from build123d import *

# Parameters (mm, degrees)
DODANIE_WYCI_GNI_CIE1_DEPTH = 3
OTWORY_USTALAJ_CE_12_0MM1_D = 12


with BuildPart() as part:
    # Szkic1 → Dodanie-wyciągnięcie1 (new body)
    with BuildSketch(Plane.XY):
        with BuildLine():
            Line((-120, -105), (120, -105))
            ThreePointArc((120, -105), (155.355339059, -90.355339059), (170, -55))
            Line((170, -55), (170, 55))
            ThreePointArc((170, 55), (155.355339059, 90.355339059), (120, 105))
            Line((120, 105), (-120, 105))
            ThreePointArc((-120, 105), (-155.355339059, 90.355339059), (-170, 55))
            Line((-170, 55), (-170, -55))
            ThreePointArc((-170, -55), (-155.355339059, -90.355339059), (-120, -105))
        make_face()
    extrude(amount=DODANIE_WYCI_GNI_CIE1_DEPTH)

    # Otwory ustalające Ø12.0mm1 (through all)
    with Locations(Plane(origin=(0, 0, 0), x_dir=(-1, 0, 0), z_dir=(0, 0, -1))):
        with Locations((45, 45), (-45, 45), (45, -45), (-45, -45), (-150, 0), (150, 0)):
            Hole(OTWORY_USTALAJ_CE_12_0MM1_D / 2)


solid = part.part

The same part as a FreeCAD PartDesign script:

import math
import FreeCAD as App
import Part
import Sketcher
Q = App.Units.Quantity

doc = App.newDocument("Part")
body = doc.addObject("PartDesign::Body", "Body")

# Sketch on XY plane
sketch1 = body.newObject("Sketcher::SketchObject", "Sketch")
sketch1.AttachmentSupport = (doc.getObject("XY_Plane"), [""])
sketch1.MapMode = "FlatFace"
sketch1.addGeometry([
    Part.LineSegment(App.Vector(-120, -105, 0), App.Vector(120, -105, 0)),  # 0
    Part.ArcOfCircle(Part.Circle(App.Vector(120, -55, 0), App.Vector(0, 0, 1), 50), math.radians(-90), math.radians(0)),  # 1
    Part.LineSegment(App.Vector(170, -55, 0), App.Vector(170, 55, 0)),  # 2
    Part.ArcOfCircle(Part.Circle(App.Vector(120, 55, 0), App.Vector(0, 0, 1), 50), math.radians(0), math.radians(90)),  # 3
    Part.LineSegment(App.Vector(120, 105, 0), App.Vector(-120, 105, 0)),  # 4
    Part.ArcOfCircle(Part.Circle(App.Vector(-120, 55, 0), App.Vector(0, 0, 1), 50), math.radians(90), math.radians(180)),  # 5
    Part.LineSegment(App.Vector(-170, 55, 0), App.Vector(-170, -55, 0)),  # 6
    Part.ArcOfCircle(Part.Circle(App.Vector(-120, -55, 0), App.Vector(0, 0, 1), 50), math.radians(-180), math.radians(-90)),  # 7
], False)
sketch1.addConstraint([
    Sketcher.Constraint("Tangent", 0, 2, 1, 1),
    Sketcher.Constraint("Tangent", 1, 2, 2, 1),
    Sketcher.Constraint("Tangent", 2, 2, 3, 1),
    Sketcher.Constraint("Tangent", 3, 2, 4, 1),
    Sketcher.Constraint("Tangent", 4, 2, 5, 1),
    Sketcher.Constraint("Tangent", 5, 2, 6, 1),
    Sketcher.Constraint("Tangent", 6, 2, 7, 1),
    Sketcher.Constraint("Tangent", 7, 2, 0, 1),
    Sketcher.Constraint("Horizontal", 0),
    Sketcher.Constraint("Vertical", 2),
    Sketcher.Constraint("Horizontal", 4),
    Sketcher.Constraint("Vertical", 6),
    Sketcher.Constraint("Equal", 1, 3),
    Sketcher.Constraint("Equal", 3, 5),
    Sketcher.Constraint("Equal", 5, 7),
    Sketcher.Constraint("Symmetric", 1, 3, 5, 3, -1, 1),
    Sketcher.Constraint("Radius", 1, Q("50 mm")),
    Sketcher.Constraint("DistanceX", 0, 1, 0, 2, Q("240 mm")),
    Sketcher.Constraint("DistanceY", 2, 1, 2, 2, Q("110 mm")),
])
pad1 = body.newObject("PartDesign::Pad", "Pad")
pad1.Profile = sketch1
pad1.Length = 3

# Sketch on XY plane
sketch2 = body.newObject("Sketcher::SketchObject", "Sketch001")
sketch2.AttachmentSupport = (doc.getObject("XY_Plane"), [""])
sketch2.MapMode = "FlatFace"
sketch2.addGeometry([
    Part.Circle(App.Vector(-45, 45, 0), App.Vector(0, 0, 1), 6),  # 0
    Part.Circle(App.Vector(45, 45, 0), App.Vector(0, 0, 1), 6),  # 1
    Part.Circle(App.Vector(-45, -45, 0), App.Vector(0, 0, 1), 6),  # 2
    Part.Circle(App.Vector(45, -45, 0), App.Vector(0, 0, 1), 6),  # 3
    Part.Circle(App.Vector(150, 0, 0), App.Vector(0, 0, 1), 6),  # 4
    Part.Circle(App.Vector(-150, 0, 0), App.Vector(0, 0, 1), 6),  # 5
], False)
sketch2.addConstraint([
    Sketcher.Constraint("Equal", 0, 1),
    Sketcher.Constraint("Equal", 1, 2),
    Sketcher.Constraint("Equal", 2, 3),
    Sketcher.Constraint("Equal", 3, 4),
    Sketcher.Constraint("Equal", 4, 5),
    Sketcher.Constraint("Symmetric", 1, 3, 2, 3, -1, 1),
    Sketcher.Constraint("Symmetric", 0, 3, 3, 3, -1, 1),
    Sketcher.Constraint("Symmetric", 4, 3, 5, 3, -1, 1),
    Sketcher.Constraint("Symmetric", 0, 3, 1, 3, -2),
    Sketcher.Constraint("PointOnObject", 4, 3, -1),
    Sketcher.Constraint("Diameter", 0, Q("12 mm")),
    Sketcher.Constraint("DistanceX", 0, 3, -1, 1, Q("45 mm")),
    Sketcher.Constraint("DistanceY", -1, 1, 0, 3, Q("45 mm")),
    Sketcher.Constraint("DistanceX", -1, 1, 4, 3, Q("150 mm")),
])
doc.recompute()
hole = body.newObject("PartDesign::Hole", "Hole")
hole.Profile = sketch2
hole.ThreadType = "None"
hole.Diameter = 12
hole.DepthType = "ThroughAll"
hole.Reversed = True

doc.recompute()
